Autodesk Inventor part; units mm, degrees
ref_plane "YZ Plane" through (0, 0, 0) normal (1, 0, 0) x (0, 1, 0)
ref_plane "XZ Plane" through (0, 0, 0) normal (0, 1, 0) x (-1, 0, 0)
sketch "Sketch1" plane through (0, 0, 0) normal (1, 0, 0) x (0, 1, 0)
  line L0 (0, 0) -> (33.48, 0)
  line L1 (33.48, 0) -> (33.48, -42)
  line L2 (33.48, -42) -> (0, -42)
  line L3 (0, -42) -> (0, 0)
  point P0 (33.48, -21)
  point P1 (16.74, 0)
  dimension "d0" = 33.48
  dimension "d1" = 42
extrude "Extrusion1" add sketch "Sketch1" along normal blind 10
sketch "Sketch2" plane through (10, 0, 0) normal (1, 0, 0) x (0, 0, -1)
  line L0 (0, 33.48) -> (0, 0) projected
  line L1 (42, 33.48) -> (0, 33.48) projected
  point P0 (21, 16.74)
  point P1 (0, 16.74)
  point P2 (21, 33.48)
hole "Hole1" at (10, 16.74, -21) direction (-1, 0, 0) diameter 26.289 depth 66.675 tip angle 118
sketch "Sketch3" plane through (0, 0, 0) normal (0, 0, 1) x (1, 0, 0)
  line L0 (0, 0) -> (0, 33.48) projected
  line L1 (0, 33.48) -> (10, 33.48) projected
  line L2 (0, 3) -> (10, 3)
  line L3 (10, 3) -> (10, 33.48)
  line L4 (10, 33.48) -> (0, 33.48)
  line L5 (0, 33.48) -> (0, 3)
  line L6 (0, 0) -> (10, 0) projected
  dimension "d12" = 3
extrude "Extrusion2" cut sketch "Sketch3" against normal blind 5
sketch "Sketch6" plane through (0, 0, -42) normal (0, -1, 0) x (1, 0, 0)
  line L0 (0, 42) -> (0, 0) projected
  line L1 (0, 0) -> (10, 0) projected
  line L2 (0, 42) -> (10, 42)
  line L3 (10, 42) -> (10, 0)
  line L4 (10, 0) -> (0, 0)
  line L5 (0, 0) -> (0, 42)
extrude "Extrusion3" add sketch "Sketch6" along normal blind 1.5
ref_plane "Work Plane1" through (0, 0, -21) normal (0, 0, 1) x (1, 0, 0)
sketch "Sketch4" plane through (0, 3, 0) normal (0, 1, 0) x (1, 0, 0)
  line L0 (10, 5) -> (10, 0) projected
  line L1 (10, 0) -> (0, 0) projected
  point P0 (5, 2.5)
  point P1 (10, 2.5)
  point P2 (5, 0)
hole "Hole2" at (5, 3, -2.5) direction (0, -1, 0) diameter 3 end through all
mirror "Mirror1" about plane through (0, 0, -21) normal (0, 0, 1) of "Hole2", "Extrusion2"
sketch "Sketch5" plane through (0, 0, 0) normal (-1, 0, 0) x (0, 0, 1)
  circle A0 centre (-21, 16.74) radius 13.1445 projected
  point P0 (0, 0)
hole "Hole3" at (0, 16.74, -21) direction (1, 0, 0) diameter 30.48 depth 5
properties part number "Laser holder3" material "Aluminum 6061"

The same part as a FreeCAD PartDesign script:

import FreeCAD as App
import Part
import Sketcher

V = App.Vector
Q = App.Units.Quantity

doc = App.newDocument("Part")
params = doc.addObject("Spreadsheet::Sheet", "Params")
for row, (alias, value) in enumerate([
    ("sketch1_height", "42 mm"),
    ("sketch1_width", "33.48 mm"),
    ("pad1_length", "10 mm"),
    ("hole_diameter", "26.289 mm"),
    ("hole_depth", "66.675 mm"),
    ("sketch3_width", "10 mm"),
    ("sketch3_height", "30.48 mm"),
    ("pocket1_length", "5 mm"),
    ("sketch4_width", "10 mm"),
    ("sketch4_height", "42 mm"),
    ("pad2_length", "1.5 mm"),
    ("sketch5_diameter", "3 mm"),
    ("hole2_diameter", "3 mm"),
    ("sketch6_diameter", "30.48 mm"),
    ("hole3_diameter", "30.48 mm"),
    ("hole3_depth", "5 mm"),
], start=1):
    params.set(f"A{row}", alias)
    params.set(f"B{row}", "=" + value)
    params.setAlias(f"B{row}", alias)

body = doc.addObject("PartDesign::Body", "Body")

# Sketch on YZ plane
sketch1 = body.newObject("Sketcher::SketchObject", "Sketch")
sketch1.AttachmentSupport = (doc.getObject("YZ_Plane"), [""])
sketch1.MapMode = "FlatFace"
sketch1.addGeometry([
    Part.LineSegment(V(33, 0, 0), V(0, 0, 0)),
    Part.LineSegment(V(0, 0, 0), V(0, -42, 0)),
    Part.LineSegment(V(0, -42, 0), V(33, -42, 0)),
    Part.LineSegment(V(33, -42, 0), V(33, 0, 0)),
], False)
sketch1.addConstraint([
    Sketcher.Constraint("Coincident", 0, 2, 1, 1),
    Sketcher.Constraint("Coincident", 1, 2, 2, 1),
    Sketcher.Constraint("Coincident", 2, 2, 3, 1),
    Sketcher.Constraint("Coincident", 3, 2, 0, 1),
    Sketcher.Constraint("Horizontal", 0),
    Sketcher.Constraint("Vertical", 1),
    Sketcher.Constraint("Horizontal", 2),
    Sketcher.Constraint("Vertical", 3),
    Sketcher.Constraint("Coincident", 0, 2, -1, 1),
    Sketcher.Constraint("DistanceY", 1, 2, 1, 1, Q("42 mm")),
    Sketcher.Constraint("DistanceX", 0, 2, 0, 1, Q("33.48 mm")),
])
sketch1.setExpression("Constraints[9]", "Params.sketch1_height")
sketch1.setExpression("Constraints[10]", "Params.sketch1_width")
pad1 = body.newObject("PartDesign::Pad", "Pad")
pad1.Profile = sketch1
pad1.setExpression("Length", "Params.pad1_length")

# Sketch on YZ plane
sketch2 = body.newObject("Sketcher::SketchObject", "Sketch001")
sketch2.AttachmentSupport = (doc.getObject("YZ_Plane"), [""])
sketch2.MapMode = "FlatFace"
sketch2.AttachmentOffset = App.Placement(V(0, 0, 10), App.Rotation())
sketch2.addGeometry(Part.Circle(V(17, -21, 0), V(0, 0, 1), 13), False)
sketch2.addConstraint([
    Sketcher.Constraint("Diameter", 0, Q("26.289 mm")),
    Sketcher.Constraint("DistanceY", 0, 3, -1, 1, Q("21 mm")),
    Sketcher.Constraint("DistanceX", -1, 1, 0, 3, Q("16.74 mm")),
])
doc.recompute()
hole = body.newObject("PartDesign::Hole", "Hole")
hole.Profile = sketch2
hole.ThreadType = "None"
hole.setExpression("Diameter", "Params.hole_diameter")
hole.DepthType = "Dimension"
hole.setExpression("Depth", "Params.hole_depth")
hole.DrillPoint = "Angled"
hole.DrillPointAngle = 118

# Sketch on XY plane
sketch3 = body.newObject("Sketcher::SketchObject", "Sketch002")
sketch3.AttachmentSupport = (doc.getObject("XY_Plane"), [""])
sketch3.MapMode = "FlatFace"
sketch3.addGeometry([
    Part.LineSegment(V(0, 33, 0), V(0, 3, 0)),
    Part.LineSegment(V(0, 3, 0), V(10, 3, 0)),
    Part.LineSegment(V(10, 3, 0), V(10, 33, 0)),
    Part.LineSegment(V(10, 33, 0), V(0, 33, 0)),
], False)
sketch3.addConstraint([
    Sketcher.Constraint("Coincident", 0, 2, 1, 1),
    Sketcher.Constraint("Coincident", 1, 2, 2, 1),
    Sketcher.Constraint("Coincident", 2, 2, 3, 1),
    Sketcher.Constraint("Coincident", 3, 2, 0, 1),
    Sketcher.Constraint("Vertical", 0),
    Sketcher.Constraint("Horizontal", 1),
    Sketcher.Constraint("Vertical", 2),
    Sketcher.Constraint("Horizontal", 3),
    Sketcher.Constraint("PointOnObject", 0, 2, -2),
    Sketcher.Constraint("DistanceY", -1, 1, 0, 2, Q("3 mm")),
    Sketcher.Constraint("DistanceX", 1, 1, 1, 2, Q("10 mm")),
    Sketcher.Constraint("DistanceY", 0, 2, 0, 1, Q("30.48 mm")),
])
sketch3.setExpression("Constraints[10]", "Params.sketch3_width")
sketch3.setExpression("Constraints[11]", "Params.sketch3_height")
pocket1 = body.newObject("PartDesign::Pocket", "Pocket")
pocket1.Profile = sketch3
pocket1.setExpression("Length", "Params.pocket1_length")

# Sketch on XZ plane
sketch4 = body.newObject("Sketcher::SketchObject", "Sketch003")
sketch4.AttachmentSupport = (doc.getObject("XZ_Plane"), [""])
sketch4.MapMode = "FlatFace"
sketch4.addGeometry([
    Part.LineSegment(V(10, 0, 0), V(0, 0, 0)),
    Part.LineSegment(V(0, 0, 0), V(0, -42, 0)),
    Part.LineSegment(V(0, -42, 0), V(10, -42, 0)),
    Part.LineSegment(V(10, -42, 0), V(10, 0, 0)),
], False)
sketch4.addConstraint([
    Sketcher.Constraint("Coincident", 0, 2, 1, 1),
    Sketcher.Constraint("Coincident", 1, 2, 2, 1),
    Sketcher.Constraint("Coincident", 2, 2, 3, 1),
    Sketcher.Constraint("Coincident", 3, 2, 0, 1),
    Sketcher.Constraint("Horizontal", 0),
    Sketcher.Constraint("Vertical", 1),
    Sketcher.Constraint("Horizontal", 2),
    Sketcher.Constraint("Vertical", 3),
    Sketcher.Constraint("Coincident", 0, 2, -1, 1),
    Sketcher.Constraint("DistanceX", 0, 2, 0, 1, Q("10 mm")),
    Sketcher.Constraint("DistanceY", 1, 2, 1, 1, Q("42 mm")),
])
sketch4.setExpression("Constraints[9]", "Params.sketch4_width")
sketch4.setExpression("Constraints[10]", "Params.sketch4_height")
pad2 = body.newObject("PartDesign::Pad", "Pad001")
pad2.Profile = sketch4
pad2.setExpression("Length", "Params.pad2_length")

# Sketch on XZ plane
sketch5 = body.newObject("Sketcher::SketchObject", "Sketch004")
sketch5.AttachmentSupport = (doc.getObject("XZ_Plane"), [""])
sketch5.MapMode = "FlatFace"
sketch5.AttachmentOffset = App.Placement(V(0, 0, -3), App.Rotation())
sketch5.addGeometry(Part.Circle(V(5, -2.5, 0), V(0, 0, 1), 1.5), False)
sketch5.addConstraint([
    Sketcher.Constraint("Diameter", 0, Q("3 mm")),
    Sketcher.Constraint("DistanceX", -1, 1, 0, 3, Q("5 mm")),
    Sketcher.Constraint("DistanceY", 0, 3, -1, 1, Q("2.5 mm")),
])
sketch5.setExpression("Constraints[0]", "Params.sketch5_diameter")
doc.recompute()
hole2 = body.newObject("PartDesign::Hole", "Hole001")
hole2.Profile = sketch5
hole2.ThreadType = "None"
hole2.setExpression("Diameter", "Params.hole2_diameter")
hole2.DepthType = "ThroughAll"
hole2.Reversed = True
doc.recompute()

datumplane = body.newObject("PartDesign::Plane", "DatumPlane")
datumplane.AttachmentSupport = (doc.getObject("XY_Plane"), [""])
datumplane.MapMode = "FlatFace"
datumplane.AttachmentOffset = App.Placement(V(0, 0, -21), App.Rotation())
mirrored = body.newObject("PartDesign::Mirrored", "Mirrored")
mirrored.Originals = [hole2, pocket1]
mirrored.MirrorPlane = (datumplane, [""])
body.Tip = mirrored

# Sketch on YZ plane
sketch6 = body.newObject("Sketcher::SketchObject", "Sketch005")
sketch6.AttachmentSupport = (doc.getObject("YZ_Plane"), [""])
sketch6.MapMode = "FlatFace"
sketch6.addGeometry(Part.Circle(V(17, -21, 0), V(0, 0, 1), 15), False)
sketch6.addConstraint([
    Sketcher.Constraint("Diameter", 0, Q("30.48 mm")),
    Sketcher.Constraint("DistanceY", 0, 3, -1, 1, Q("21 mm")),
    Sketcher.Constraint("DistanceX", -1, 1, 0, 3, Q("16.74 mm")),
])
sketch6.setExpression("Constraints[0]", "Params.sketch6_diameter")
doc.recompute()
hole3 = body.newObject("PartDesign::Hole", "Hole002")
hole3.Profile = sketch6
hole3.ThreadType = "None"
hole3.setExpression("Diameter", "Params.hole3_diameter")
hole3.DepthType = "Dimension"
hole3.setExpression("Depth", "Params.hole3_depth")
hole3.DrillPoint = "Flat"
hole3.Reversed = True

doc.recompute()
